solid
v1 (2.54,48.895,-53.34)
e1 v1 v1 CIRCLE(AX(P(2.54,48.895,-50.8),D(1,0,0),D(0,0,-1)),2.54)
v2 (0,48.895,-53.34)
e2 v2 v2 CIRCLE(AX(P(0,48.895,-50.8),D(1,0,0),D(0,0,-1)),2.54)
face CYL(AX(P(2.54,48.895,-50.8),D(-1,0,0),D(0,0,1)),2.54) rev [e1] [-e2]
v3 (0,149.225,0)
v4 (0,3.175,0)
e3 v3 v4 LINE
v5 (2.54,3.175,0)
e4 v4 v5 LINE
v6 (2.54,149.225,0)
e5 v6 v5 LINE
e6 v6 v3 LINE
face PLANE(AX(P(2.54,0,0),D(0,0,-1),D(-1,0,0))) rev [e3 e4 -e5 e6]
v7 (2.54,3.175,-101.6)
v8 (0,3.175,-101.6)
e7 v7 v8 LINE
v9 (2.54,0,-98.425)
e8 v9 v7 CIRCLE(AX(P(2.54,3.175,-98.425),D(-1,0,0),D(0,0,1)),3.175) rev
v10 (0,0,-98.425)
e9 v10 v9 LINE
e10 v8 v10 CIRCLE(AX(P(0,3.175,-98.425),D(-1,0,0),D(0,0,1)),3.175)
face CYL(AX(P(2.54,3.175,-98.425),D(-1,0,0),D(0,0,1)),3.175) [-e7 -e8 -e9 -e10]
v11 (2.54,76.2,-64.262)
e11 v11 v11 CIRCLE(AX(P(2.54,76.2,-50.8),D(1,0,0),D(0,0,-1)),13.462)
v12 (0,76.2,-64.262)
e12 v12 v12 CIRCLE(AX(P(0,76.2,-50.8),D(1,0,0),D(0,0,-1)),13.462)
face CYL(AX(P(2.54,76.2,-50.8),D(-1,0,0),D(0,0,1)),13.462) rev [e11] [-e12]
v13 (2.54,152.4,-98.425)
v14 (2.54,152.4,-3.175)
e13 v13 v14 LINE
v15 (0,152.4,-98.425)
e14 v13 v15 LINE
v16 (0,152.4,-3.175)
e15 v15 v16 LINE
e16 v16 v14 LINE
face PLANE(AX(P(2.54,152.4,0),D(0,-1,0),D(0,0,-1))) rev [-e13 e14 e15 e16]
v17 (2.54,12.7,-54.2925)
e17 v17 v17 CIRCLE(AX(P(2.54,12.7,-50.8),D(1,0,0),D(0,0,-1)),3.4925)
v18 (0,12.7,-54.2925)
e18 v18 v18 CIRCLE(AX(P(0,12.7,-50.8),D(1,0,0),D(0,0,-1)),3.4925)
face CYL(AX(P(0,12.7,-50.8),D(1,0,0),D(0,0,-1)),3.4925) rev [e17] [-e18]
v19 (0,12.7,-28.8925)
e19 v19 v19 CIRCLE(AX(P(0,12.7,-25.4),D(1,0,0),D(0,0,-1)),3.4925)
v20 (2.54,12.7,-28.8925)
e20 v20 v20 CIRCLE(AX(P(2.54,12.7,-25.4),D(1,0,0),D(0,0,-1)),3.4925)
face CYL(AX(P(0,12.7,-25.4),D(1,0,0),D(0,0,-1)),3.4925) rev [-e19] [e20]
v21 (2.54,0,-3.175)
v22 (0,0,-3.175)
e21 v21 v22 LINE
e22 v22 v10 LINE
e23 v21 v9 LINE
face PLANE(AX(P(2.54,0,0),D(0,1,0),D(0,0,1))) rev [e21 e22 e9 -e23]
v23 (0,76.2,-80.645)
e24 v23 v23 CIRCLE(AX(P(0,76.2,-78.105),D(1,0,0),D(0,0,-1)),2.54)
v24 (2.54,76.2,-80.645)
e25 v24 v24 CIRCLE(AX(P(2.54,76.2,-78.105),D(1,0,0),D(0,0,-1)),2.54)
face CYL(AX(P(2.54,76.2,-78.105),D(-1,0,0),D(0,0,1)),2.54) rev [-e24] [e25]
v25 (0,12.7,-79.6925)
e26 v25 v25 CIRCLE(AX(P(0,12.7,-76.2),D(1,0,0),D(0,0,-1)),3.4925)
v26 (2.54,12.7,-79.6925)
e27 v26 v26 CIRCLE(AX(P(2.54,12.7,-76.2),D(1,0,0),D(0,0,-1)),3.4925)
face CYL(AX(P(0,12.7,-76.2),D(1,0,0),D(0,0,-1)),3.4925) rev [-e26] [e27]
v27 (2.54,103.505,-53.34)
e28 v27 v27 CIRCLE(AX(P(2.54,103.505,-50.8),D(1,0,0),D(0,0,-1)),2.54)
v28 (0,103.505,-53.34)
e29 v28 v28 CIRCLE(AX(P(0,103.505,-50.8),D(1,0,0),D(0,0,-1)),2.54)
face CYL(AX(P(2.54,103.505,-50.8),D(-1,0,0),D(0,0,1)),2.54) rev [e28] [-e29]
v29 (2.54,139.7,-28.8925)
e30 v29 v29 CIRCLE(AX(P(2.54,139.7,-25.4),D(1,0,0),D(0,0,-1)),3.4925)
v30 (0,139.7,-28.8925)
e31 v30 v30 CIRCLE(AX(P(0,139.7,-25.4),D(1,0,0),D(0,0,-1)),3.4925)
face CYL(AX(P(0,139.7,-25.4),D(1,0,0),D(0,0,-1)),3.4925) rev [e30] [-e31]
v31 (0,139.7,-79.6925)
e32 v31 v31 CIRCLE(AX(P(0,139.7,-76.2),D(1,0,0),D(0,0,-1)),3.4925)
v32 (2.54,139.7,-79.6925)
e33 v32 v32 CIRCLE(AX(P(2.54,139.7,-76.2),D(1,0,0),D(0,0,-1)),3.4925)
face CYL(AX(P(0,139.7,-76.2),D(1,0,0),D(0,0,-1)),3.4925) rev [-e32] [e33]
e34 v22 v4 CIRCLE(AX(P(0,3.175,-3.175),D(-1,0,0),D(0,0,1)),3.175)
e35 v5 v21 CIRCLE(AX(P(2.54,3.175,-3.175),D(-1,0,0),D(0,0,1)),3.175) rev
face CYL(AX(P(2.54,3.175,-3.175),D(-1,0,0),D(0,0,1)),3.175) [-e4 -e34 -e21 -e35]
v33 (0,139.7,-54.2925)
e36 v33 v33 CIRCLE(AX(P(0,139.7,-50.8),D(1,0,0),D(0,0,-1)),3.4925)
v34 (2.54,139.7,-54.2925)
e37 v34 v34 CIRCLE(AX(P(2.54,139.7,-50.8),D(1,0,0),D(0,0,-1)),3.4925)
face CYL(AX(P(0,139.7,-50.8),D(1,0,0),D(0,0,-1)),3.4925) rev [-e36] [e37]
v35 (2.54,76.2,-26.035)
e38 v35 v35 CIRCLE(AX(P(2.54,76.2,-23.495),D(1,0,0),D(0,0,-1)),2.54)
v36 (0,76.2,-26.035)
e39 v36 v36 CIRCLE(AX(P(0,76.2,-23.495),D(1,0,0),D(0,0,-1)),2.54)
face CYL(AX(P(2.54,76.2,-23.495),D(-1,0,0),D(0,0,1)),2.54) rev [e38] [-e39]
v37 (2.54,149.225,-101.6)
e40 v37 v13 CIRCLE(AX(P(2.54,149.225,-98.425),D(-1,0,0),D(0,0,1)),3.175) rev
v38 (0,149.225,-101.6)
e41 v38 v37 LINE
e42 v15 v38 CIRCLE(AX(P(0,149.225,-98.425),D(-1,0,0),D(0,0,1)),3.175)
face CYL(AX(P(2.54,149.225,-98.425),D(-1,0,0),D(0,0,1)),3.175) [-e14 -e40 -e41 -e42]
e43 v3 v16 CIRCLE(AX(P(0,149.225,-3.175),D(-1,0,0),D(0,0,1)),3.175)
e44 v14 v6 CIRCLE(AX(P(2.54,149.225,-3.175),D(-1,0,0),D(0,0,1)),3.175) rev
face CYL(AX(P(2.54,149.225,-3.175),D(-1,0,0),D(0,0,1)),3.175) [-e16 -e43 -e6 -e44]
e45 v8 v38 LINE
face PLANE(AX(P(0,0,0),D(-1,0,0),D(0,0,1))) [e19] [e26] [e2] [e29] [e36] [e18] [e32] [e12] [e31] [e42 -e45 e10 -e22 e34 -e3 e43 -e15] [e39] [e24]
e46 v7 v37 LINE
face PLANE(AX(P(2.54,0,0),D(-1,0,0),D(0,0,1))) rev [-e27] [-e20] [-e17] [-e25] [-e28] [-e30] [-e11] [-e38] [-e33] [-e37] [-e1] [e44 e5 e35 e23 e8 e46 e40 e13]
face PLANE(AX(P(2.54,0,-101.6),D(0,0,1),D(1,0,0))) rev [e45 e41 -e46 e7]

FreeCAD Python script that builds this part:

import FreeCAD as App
import Part
import Sketcher

V = App.Vector
Q = App.Units.Quantity


def edges_at(feature, points):
    """Names of the edges that pass closest to the given points."""
    edges = feature.Shape.Edges
    near = lambda p: min(range(len(edges)), key=lambda i: edges[i].distToShape(Part.Vertex(*p))[0])
    return sorted({f"Edge{near(p) + 1}" for p in points})

doc = App.newDocument("Part")
body = doc.addObject("PartDesign::Body", "Body")

sketch1 = body.newObject("Sketcher::SketchObject", "Sketch")
sketch1.AttachmentSupport = (doc.getObject("YZ_Plane"), [""])
sketch1.MapMode = "FlatFace"
sketch1.addGeometry(Part.LineSegment(V(152.4, 0, 0), V(0, 0, 0)), False)
sketch1.addGeometry(Part.LineSegment(V(0, 0, 0), V(0, -101.6, 0)), False)
sketch1.addGeometry(Part.LineSegment(V(0, -101.6, 0), V(152.4, -101.6, 0)), False)
sketch1.addGeometry(Part.LineSegment(V(152.4, -101.6, 0), V(152.4, 0, 0)), False)
sketch1.addGeometry(Part.Circle(V(48.9, -50.8, 0), V(0, 0, 1), 2.5), False)
sketch1.addGeometry(Part.Circle(V(76.2, -23.5, 0), V(0, 0, 1), 2.5), False)
sketch1.addGeometry(Part.Circle(V(76.2, -50.8, 0), V(0, 0, 1), 13.5), False)
sketch1.addGeometry(Part.Circle(V(103.5, -50.8, 0), V(0, 0, 1), 2.5), False)
sketch1.addGeometry(Part.Circle(V(76.2, -78.1, 0), V(0, 0, 1), 2.5), False)
sketch1.addConstraint(Sketcher.Constraint("Coincident", 0, 2, 1, 1))
sketch1.addConstraint(Sketcher.Constraint("Coincident", 1, 2, 2, 1))
sketch1.addConstraint(Sketcher.Constraint("Coincident", 2, 2, 3, 1))
sketch1.addConstraint(Sketcher.Constraint("Coincident", 3, 2, 0, 1))
sketch1.addConstraint(Sketcher.Constraint("Horizontal", 0))
sketch1.addConstraint(Sketcher.Constraint("Vertical", 1))
sketch1.addConstraint(Sketcher.Constraint("Horizontal", 2))
sketch1.addConstraint(Sketcher.Constraint("Vertical", 3))
sketch1.addConstraint(Sketcher.Constraint("Coincident", 0, 2, -1, 1))
sketch1.addConstraint(Sketcher.Constraint("Equal", 4, 5))
sketch1.addConstraint(Sketcher.Constraint("Equal", 5, 7))
sketch1.addConstraint(Sketcher.Constraint("Equal", 7, 8))
sketch1.addConstraint(Sketcher.Constraint("Horizontal", 4, 3, 6, 3))
sketch1.addConstraint(Sketcher.Constraint("Horizontal", 6, 3, 7, 3))
sketch1.addConstraint(Sketcher.Constraint("Vertical", 5, 3, 6, 3))
sketch1.addConstraint(Sketcher.Constraint("Vertical", 6, 3, 8, 3))
sketch1.addConstraint(Sketcher.Constraint("Diameter", 4, Q("0.2 in")))
sketch1.addConstraint(Sketcher.Constraint("Diameter", 6, Q("1.06 in")))
sketch1.addConstraint(Sketcher.Constraint("DistanceX", 0, 2, 0, 1, Q("6 in")))
sketch1.addConstraint(Sketcher.Constraint("DistanceY", 1, 2, 1, 1, Q("4 in")))
sketch1.addConstraint(Sketcher.Constraint("DistanceY", 4, 3, -1, 1, Q("2 in")))
sketch1.addConstraint(Sketcher.Constraint("DistanceX", -1, 1, 5, 3, Q("3 in")))
sketch1.addConstraint(Sketcher.Constraint("DistanceX", 4, 3, 7, 3, Q("2.15 in")))
sketch1.addConstraint(Sketcher.Constraint("DistanceY", 8, 3, 5, 3, Q("2.15 in")))
sketch1.addConstraint(Sketcher.Constraint("DistanceX", -1, 1, 4, 3, Q("1.925 in")))
sketch1.addConstraint(Sketcher.Constraint("DistanceY", 5, 3, -1, 1, Q("0.925 in")))
pad1 = body.newObject("PartDesign::Pad", "Pad")
pad1.Profile = sketch1
pad1.Length = Q("0.1 in")

sketch2 = body.newObject("Sketcher::SketchObject", "Sketch001")
sketch2.AttachmentSupport = (doc.getObject("YZ_Plane"), [""])
sketch2.MapMode = "FlatFace"
sketch2.AttachmentOffset = App.Placement(V(0, 0, 0.1 * 25.4), App.Rotation())
sketch2.addGeometry(Part.Circle(V(139.7, -50.8, 0), V(0, 0, 1), 3.5), False)
sketch2.addGeometry(Part.Circle(V(12.7, -50.8, 0), V(0, 0, 1), 3.5), False)
sketch2.addConstraint(Sketcher.Constraint("Equal", 0, 1))
sketch2.addConstraint(Sketcher.Constraint("Horizontal", 0, 3, 1, 3))
sketch2.addConstraint(Sketcher.Constraint("Diameter", 0, Q("0.275 in")))
sketch2.addConstraint(Sketcher.Constraint("DistanceY", 0, 3, -1, 1, Q("2 in")))
sketch2.addConstraint(Sketcher.Constraint("DistanceX", 1, 3, 0, 3, Q("5 in")))
sketch2.addConstraint(Sketcher.Constraint("DistanceX", -1, 1, 0, 3, Q("5.5 in")))
pocket1 = body.newObject("PartDesign::Pocket", "Pocket")
pocket1.Profile = sketch2
pocket1.Type = "ThroughAll"
doc.recompute()

linearpattern = body.newObject("PartDesign::LinearPattern", "LinearPattern")
linearpattern.Originals = [pocket1]
linearpattern.Direction = (doc.getObject("Z_Axis"), [""])
linearpattern.Mode = "offset"
linearpattern.Offset = Q("1 in")
linearpattern.Occurrences = 2
linearpattern.Reversed = True
body.Tip = linearpattern
doc.recompute()

linearpattern2 = body.newObject("PartDesign::LinearPattern", "LinearPattern001")
linearpattern2.Originals = [pocket1]
linearpattern2.Direction = (doc.getObject("Z_Axis"), [""])
linearpattern2.Mode = "offset"
linearpattern2.Offset = Q("1 in")
linearpattern2.Occurrences = 2
body.Tip = linearpattern2
doc.recompute()

fillet = body.newObject("PartDesign::Fillet", "Fillet")
fillet.Base = (linearpattern2, edges_at(linearpattern2, [
    (1.27, 152.4, 0),
    (1.27, 152.4, -101.6),
    (1.27, 0, -101.6),
    (1.27, 0, 0),
]))
fillet.Radius = Q("0.125 in")

doc.recompute()
